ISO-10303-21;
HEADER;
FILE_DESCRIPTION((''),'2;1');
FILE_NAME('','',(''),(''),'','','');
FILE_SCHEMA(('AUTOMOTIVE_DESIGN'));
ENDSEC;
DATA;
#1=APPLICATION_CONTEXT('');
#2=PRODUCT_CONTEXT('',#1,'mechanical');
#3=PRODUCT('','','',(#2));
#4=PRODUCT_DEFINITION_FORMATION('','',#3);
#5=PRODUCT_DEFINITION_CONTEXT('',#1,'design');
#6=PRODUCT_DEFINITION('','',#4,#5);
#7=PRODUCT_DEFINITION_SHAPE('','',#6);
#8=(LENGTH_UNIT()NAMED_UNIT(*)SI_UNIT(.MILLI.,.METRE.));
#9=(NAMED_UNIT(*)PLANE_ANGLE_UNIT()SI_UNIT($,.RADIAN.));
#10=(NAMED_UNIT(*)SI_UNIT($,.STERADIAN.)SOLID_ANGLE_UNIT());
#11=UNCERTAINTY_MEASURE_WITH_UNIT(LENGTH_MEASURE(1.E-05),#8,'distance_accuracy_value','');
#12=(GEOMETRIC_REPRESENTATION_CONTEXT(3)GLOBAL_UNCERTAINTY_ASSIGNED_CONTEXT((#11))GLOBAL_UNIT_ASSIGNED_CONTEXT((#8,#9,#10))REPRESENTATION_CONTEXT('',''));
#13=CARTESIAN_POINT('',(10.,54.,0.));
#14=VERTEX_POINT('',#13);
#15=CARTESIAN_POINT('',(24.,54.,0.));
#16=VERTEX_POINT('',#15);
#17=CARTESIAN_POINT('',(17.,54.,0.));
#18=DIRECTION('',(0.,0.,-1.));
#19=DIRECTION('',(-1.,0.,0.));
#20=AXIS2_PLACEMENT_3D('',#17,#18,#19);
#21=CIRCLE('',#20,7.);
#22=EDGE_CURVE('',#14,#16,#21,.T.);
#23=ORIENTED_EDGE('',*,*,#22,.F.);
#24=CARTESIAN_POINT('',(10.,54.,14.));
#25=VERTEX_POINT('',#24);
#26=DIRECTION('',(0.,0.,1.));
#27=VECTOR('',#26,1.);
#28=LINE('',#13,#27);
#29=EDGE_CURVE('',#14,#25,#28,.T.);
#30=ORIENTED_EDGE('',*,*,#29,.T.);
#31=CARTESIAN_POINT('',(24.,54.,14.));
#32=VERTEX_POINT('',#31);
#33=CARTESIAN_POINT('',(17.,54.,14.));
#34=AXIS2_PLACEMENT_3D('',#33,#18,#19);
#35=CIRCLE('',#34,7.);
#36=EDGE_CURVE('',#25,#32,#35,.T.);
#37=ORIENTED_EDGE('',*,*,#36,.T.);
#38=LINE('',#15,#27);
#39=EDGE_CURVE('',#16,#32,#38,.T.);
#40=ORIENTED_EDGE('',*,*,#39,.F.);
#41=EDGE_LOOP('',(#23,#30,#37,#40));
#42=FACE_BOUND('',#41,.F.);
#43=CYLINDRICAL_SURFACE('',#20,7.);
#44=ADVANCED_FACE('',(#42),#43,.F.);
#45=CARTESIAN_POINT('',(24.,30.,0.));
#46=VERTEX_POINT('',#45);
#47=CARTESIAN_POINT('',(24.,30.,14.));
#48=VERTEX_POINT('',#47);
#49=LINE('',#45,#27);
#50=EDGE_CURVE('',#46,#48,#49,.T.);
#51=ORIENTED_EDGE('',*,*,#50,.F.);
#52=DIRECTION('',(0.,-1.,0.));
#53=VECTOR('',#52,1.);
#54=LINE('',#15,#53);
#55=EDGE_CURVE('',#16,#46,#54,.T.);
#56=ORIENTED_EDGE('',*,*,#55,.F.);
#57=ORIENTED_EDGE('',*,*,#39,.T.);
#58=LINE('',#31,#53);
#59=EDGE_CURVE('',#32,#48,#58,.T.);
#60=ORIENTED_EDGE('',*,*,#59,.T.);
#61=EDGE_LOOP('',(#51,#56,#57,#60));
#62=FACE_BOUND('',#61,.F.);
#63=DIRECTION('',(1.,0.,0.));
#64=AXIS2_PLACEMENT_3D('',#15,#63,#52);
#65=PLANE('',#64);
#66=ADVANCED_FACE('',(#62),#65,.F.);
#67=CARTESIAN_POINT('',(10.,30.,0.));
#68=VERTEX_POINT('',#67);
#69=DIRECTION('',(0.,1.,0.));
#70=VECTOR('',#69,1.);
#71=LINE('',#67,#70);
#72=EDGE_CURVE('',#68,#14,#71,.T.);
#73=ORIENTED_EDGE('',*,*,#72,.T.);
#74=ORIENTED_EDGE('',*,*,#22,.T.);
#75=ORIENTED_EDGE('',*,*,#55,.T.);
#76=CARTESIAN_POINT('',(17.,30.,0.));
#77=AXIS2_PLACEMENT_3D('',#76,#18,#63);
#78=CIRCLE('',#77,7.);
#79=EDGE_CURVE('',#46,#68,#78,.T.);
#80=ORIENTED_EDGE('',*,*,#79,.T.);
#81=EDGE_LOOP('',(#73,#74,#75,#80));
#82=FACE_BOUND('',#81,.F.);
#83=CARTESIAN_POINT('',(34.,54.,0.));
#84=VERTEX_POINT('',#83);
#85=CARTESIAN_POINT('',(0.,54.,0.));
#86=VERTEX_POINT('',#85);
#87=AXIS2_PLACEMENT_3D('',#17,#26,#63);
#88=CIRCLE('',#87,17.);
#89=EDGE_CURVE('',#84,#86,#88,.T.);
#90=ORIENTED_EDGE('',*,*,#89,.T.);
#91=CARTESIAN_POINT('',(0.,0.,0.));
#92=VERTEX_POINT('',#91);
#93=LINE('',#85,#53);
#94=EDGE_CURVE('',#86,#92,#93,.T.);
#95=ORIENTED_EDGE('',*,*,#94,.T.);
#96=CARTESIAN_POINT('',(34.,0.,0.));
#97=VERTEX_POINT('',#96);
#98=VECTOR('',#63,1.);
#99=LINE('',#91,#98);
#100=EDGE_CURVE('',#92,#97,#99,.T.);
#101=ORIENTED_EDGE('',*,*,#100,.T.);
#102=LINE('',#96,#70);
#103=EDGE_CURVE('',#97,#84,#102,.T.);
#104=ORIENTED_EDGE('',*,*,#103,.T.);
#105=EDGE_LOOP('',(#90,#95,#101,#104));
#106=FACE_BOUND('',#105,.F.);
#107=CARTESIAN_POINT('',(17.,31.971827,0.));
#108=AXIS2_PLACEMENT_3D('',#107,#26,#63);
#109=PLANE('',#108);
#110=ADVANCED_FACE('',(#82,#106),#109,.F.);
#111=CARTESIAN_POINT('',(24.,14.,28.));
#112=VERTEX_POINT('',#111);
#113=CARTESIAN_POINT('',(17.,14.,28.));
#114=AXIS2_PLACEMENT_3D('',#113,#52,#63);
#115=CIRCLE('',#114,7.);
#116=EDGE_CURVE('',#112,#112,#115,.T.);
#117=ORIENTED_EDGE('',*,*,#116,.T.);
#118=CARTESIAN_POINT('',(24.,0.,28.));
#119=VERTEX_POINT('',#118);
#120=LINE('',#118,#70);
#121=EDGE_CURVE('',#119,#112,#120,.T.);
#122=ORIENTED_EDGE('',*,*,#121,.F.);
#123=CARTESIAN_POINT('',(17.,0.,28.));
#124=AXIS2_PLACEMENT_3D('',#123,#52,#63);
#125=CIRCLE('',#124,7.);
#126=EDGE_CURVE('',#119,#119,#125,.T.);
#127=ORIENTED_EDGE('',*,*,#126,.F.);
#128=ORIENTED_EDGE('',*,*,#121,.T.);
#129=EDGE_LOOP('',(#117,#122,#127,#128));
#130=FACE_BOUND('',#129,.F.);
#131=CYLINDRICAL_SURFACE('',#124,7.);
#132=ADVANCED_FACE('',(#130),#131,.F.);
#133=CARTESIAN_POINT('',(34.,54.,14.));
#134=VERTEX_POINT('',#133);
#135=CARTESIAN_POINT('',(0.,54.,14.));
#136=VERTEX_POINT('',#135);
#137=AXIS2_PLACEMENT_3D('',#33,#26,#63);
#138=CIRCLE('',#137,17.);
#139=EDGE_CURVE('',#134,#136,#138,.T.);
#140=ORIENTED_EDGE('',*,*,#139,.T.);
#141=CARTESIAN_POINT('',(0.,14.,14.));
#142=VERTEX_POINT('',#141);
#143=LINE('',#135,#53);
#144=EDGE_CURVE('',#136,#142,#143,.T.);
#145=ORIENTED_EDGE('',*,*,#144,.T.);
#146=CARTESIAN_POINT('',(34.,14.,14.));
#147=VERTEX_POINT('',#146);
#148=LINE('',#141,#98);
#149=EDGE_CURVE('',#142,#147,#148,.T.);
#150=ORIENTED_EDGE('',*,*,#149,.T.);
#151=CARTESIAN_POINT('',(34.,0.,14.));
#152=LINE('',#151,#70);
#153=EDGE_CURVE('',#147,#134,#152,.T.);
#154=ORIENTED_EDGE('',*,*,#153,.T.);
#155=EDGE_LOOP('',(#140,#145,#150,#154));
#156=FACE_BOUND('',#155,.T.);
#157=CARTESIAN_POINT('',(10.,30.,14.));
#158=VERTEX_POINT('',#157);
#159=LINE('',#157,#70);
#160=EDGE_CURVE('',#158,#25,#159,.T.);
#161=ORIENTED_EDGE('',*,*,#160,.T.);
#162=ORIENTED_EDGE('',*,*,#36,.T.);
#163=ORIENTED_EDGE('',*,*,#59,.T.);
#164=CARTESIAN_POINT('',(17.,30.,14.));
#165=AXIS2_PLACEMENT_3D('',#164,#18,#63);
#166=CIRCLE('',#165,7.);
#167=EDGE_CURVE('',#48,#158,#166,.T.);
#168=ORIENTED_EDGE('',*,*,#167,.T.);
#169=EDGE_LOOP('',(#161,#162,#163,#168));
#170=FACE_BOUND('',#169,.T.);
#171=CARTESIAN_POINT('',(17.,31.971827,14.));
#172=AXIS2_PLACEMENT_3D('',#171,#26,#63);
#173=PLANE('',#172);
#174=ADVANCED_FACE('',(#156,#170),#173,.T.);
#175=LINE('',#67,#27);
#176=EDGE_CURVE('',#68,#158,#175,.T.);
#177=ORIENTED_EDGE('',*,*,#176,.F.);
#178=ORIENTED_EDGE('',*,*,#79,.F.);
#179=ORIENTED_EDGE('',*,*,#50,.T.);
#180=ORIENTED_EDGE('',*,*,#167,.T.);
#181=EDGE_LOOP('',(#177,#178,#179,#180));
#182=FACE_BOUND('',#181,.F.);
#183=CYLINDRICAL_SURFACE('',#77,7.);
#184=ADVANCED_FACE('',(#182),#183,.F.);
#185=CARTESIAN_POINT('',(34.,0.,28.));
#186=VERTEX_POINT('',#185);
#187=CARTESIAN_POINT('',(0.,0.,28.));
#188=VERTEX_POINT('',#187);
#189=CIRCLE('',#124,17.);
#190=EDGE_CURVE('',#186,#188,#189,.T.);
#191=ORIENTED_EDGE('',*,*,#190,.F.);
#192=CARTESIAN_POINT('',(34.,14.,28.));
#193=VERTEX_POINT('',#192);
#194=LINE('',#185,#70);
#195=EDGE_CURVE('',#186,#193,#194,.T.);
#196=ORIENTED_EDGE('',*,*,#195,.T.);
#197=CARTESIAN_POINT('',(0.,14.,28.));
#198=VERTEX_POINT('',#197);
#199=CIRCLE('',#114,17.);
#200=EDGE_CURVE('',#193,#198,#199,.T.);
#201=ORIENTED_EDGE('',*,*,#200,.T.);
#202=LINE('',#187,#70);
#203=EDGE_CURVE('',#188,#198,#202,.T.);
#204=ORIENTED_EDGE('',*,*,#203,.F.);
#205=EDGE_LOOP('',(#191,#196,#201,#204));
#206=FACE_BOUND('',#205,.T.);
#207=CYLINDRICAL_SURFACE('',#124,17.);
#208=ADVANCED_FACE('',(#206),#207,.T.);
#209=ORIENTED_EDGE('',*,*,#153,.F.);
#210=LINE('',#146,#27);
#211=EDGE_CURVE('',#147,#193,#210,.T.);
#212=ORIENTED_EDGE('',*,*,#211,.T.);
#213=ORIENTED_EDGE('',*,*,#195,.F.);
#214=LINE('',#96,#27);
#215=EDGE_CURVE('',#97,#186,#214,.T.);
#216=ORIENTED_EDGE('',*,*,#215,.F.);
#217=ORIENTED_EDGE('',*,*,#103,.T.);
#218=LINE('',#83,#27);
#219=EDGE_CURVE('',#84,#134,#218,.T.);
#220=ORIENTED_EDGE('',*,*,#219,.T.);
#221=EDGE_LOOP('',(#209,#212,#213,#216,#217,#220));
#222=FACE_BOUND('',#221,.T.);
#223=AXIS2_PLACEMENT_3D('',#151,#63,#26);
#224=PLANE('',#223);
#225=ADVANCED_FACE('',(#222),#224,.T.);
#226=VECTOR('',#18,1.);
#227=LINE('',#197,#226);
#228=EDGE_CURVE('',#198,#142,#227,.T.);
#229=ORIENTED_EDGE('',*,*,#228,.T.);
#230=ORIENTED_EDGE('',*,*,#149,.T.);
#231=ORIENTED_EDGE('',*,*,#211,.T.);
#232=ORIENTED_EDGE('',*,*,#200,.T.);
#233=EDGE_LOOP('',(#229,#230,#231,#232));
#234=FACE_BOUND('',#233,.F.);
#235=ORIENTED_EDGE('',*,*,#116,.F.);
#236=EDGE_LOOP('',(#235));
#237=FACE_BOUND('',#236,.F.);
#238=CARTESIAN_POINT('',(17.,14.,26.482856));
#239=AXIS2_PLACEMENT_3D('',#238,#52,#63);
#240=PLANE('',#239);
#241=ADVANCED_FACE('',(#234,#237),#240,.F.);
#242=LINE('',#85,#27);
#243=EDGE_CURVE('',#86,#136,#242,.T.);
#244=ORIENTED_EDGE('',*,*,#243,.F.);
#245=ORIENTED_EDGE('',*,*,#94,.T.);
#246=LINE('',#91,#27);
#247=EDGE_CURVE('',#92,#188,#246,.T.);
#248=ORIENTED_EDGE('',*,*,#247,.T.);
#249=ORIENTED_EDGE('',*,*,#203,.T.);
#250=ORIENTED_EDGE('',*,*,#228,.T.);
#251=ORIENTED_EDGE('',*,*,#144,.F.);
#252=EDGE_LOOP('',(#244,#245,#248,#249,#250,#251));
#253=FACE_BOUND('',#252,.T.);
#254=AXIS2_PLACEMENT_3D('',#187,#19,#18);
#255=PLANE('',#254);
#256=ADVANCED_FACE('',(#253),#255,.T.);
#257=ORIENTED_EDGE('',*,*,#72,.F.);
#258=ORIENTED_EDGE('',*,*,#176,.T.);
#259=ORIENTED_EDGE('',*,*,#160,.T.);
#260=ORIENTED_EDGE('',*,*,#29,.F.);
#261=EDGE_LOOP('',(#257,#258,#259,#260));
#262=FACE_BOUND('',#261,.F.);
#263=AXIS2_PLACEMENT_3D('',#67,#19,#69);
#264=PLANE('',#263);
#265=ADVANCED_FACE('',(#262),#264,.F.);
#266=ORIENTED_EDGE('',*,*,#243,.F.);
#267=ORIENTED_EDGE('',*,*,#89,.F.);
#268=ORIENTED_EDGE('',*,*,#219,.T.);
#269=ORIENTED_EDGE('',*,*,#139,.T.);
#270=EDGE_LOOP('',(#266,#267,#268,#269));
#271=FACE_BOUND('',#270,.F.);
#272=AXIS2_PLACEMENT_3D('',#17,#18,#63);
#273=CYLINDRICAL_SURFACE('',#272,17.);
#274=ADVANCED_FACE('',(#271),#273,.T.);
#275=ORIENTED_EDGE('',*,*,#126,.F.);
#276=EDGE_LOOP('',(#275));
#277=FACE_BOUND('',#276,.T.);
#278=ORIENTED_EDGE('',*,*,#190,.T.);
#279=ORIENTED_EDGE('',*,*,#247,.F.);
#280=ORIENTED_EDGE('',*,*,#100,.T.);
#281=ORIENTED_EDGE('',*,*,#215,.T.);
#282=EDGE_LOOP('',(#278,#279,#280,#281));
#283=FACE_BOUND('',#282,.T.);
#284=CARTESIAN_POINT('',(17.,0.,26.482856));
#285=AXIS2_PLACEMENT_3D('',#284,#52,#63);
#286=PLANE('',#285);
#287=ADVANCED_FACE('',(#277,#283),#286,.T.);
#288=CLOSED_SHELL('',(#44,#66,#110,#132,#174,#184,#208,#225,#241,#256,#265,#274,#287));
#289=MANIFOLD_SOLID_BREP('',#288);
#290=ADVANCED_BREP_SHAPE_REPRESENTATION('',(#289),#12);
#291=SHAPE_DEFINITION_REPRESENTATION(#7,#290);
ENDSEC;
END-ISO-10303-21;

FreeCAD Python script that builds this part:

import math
import FreeCAD as App
import Part
import Sketcher
from FreeCAD import Vector
Q = App.Units.Quantity

doc = App.newDocument("Part")
params = doc.addObject("Spreadsheet::Sheet", "Params")
for row, (alias, value) in enumerate([
    ("sketch1_radius", "17 mm"),
    ("sketch1_radius2", "7 mm"),
    ("sketch1_height", "54 mm"),
    ("sketch1_height2", "24 mm"),
    ("pad1_length", "14 mm"),
    ("sketch2_diameter", "14 mm"),
    ("sketch2_radius", "17 mm"),
    ("sketch2_height", "14 mm"),
    ("pad2_length", "14 mm"),
], start=1):
    params.set(f"A{row}", alias)
    params.set(f"B{row}", "=" + value)
    params.setAlias(f"B{row}", alias)

body = doc.addObject("PartDesign::Body", "Body")

sketch1 = doc.addObject("Sketcher::SketchObject", "Sketch")
body.addObject(sketch1)
sketch1.AttachmentSupport = (doc.XY_Plane, [""])
sketch1.MapMode = "FlatFace"
sketch1.addGeometry(Part.LineSegment(Vector(0, 54, 0), Vector(0, 0, 0)), False)
sketch1.addGeometry(Part.LineSegment(Vector(0, 0, 0), Vector(34, 0, 0)), False)
sketch1.addGeometry(Part.LineSegment(Vector(34, 0, 0), Vector(34, 54, 0)), False)
sketch1.addGeometry(Part.ArcOfCircle(Part.Circle(Vector(17, 54, 0), Vector(0, 0, 1), 17), math.radians(0), math.radians(180)), False)
sketch1.addGeometry(Part.LineSegment(Vector(10, 30, 0), Vector(10, 54, 0)), False)
sketch1.addGeometry(Part.ArcOfCircle(Part.Circle(Vector(17, 54, 0), Vector(0, 0, 1), 7), math.radians(0), math.radians(180)), False)
sketch1.addGeometry(Part.LineSegment(Vector(24, 54, 0), Vector(24, 30, 0)), False)
sketch1.addGeometry(Part.ArcOfCircle(Part.Circle(Vector(17, 30, 0), Vector(0, 0, 1), 7), math.radians(180), math.radians(360)), False)
sketch1.addConstraint(Sketcher.Constraint("Coincident", 0, 2, 1, 1))
sketch1.addConstraint(Sketcher.Constraint("Coincident", 1, 2, 2, 1))
sketch1.addConstraint(Sketcher.Constraint("Tangent", 2, 2, 3, 1))
sketch1.addConstraint(Sketcher.Constraint("Tangent", 3, 2, 0, 1))
sketch1.addConstraint(Sketcher.Constraint("Tangent", 4, 2, 5, 2))
sketch1.addConstraint(Sketcher.Constraint("Tangent", 5, 1, 6, 1))
sketch1.addConstraint(Sketcher.Constraint("Tangent", 6, 2, 7, 2))
sketch1.addConstraint(Sketcher.Constraint("Tangent", 7, 1, 4, 1))
sketch1.addConstraint(Sketcher.Constraint("Vertical", 0))
sketch1.addConstraint(Sketcher.Constraint("Horizontal", 1))
sketch1.addConstraint(Sketcher.Constraint("Vertical", 2))
sketch1.addConstraint(Sketcher.Constraint("Vertical", 4))
sketch1.addConstraint(Sketcher.Constraint("Vertical", 6))
sketch1.addConstraint(Sketcher.Constraint("Coincident", 0, 2, -1, 1))
sketch1.addConstraint(Sketcher.Constraint("Coincident", 5, 3, 3, 3))
sketch1.addConstraint(Sketcher.Constraint("Radius", 3, Q("17 mm")))
sketch1.addConstraint(Sketcher.Constraint("Radius", 5, Q("7 mm")))
sketch1.addConstraint(Sketcher.Constraint("DistanceY", 0, 2, 0, 1, Q("54 mm")))
sketch1.addConstraint(Sketcher.Constraint("DistanceY", 4, 1, 4, 2, Q("24 mm")))
sketch1.setExpression("Constraints[15]", "Params.sketch1_radius")
sketch1.setExpression("Constraints[16]", "Params.sketch1_radius2")
sketch1.setExpression("Constraints[17]", "Params.sketch1_height")
sketch1.setExpression("Constraints[18]", "Params.sketch1_height2")
pad1 = doc.addObject("PartDesign::Pad", "Pad")
body.addObject(pad1)
pad1.Profile = sketch1
pad1.setExpression("Length", "Params.pad1_length")

sketch2 = doc.addObject("Sketcher::SketchObject", "Sketch001")
body.addObject(sketch2)
sketch2.AttachmentSupport = (doc.XZ_Plane, [""])
sketch2.MapMode = "FlatFace"
sketch2.addGeometry(Part.LineSegment(Vector(0, 28, 0), Vector(0, 14, 0)), False)
sketch2.addGeometry(Part.LineSegment(Vector(0, 14, 0), Vector(34, 14, 0)), False)
sketch2.addGeometry(Part.LineSegment(Vector(34, 14, 0), Vector(34, 28, 0)), False)
sketch2.addGeometry(Part.ArcOfCircle(Part.Circle(Vector(17, 28, 0), Vector(0, 0, 1), 17), math.radians(0), math.radians(180)), False)
sketch2.addGeometry(Part.Circle(Vector(17, 28, 0), Vector(0, 0, 1), 7), False)
sketch2.addConstraint(Sketcher.Constraint("Coincident", 0, 2, 1, 1))
sketch2.addConstraint(Sketcher.Constraint("Coincident", 1, 2, 2, 1))
sketch2.addConstraint(Sketcher.Constraint("Tangent", 2, 2, 3, 1))
sketch2.addConstraint(Sketcher.Constraint("Tangent", 3, 2, 0, 1))
sketch2.addConstraint(Sketcher.Constraint("Vertical", 0))
sketch2.addConstraint(Sketcher.Constraint("Horizontal", 1))
sketch2.addConstraint(Sketcher.Constraint("Vertical", 2))
sketch2.addConstraint(Sketcher.Constraint("Coincident", 4, 3, 3, 3))
sketch2.addConstraint(Sketcher.Constraint("PointOnObject", 0, 2, -2))
sketch2.addConstraint(Sketcher.Constraint("Diameter", 4, Q("14 mm")))
sketch2.addConstraint(Sketcher.Constraint("Radius", 3, Q("17 mm")))
sketch2.addConstraint(Sketcher.Constraint("DistanceY", 0, 2, 0, 1, Q("14 mm")))
sketch2.addConstraint(Sketcher.Constraint("DistanceY", -1, 1, 3, 3, Q("28 mm")))
sketch2.setExpression("Constraints[9]", "Params.sketch2_diameter")
sketch2.setExpression("Constraints[10]", "Params.sketch2_radius")
sketch2.setExpression("Constraints[11]", "Params.sketch2_height")
pad2 = doc.addObject("PartDesign::Pad", "Pad001")
body.addObject(pad2)
pad2.Profile = sketch2
pad2.setExpression("Length", "Params.pad2_length")
pad2.Reversed = True

doc.recompute()
